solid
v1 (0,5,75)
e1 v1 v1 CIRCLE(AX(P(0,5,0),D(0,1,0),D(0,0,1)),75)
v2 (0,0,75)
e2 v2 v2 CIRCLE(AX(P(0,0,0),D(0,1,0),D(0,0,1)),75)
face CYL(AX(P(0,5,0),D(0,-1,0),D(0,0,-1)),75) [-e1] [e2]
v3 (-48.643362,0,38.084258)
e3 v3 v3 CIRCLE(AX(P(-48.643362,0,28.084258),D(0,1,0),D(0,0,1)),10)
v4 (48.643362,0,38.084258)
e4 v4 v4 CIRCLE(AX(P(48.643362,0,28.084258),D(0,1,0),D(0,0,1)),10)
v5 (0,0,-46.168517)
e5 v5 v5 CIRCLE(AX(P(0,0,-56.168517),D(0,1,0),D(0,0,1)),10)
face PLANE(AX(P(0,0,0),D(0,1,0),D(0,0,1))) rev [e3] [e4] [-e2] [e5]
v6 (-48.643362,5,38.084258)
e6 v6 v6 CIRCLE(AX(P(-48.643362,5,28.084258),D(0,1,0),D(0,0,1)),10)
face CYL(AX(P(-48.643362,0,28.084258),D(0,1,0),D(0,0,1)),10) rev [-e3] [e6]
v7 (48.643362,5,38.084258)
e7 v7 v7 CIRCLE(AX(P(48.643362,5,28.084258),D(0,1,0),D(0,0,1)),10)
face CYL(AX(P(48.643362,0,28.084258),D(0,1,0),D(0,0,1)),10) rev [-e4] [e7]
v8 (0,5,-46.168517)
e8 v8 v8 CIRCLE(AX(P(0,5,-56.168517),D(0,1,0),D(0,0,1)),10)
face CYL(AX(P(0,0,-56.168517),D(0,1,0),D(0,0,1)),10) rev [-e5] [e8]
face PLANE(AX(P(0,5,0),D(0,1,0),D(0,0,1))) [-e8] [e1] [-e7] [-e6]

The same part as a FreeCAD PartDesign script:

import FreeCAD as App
import Part
import Sketcher
from FreeCAD import Vector
Q = App.Units.Quantity

doc = App.newDocument("Part")
body = doc.addObject("PartDesign::Body", "Body")

sketch1 = body.newObject("Sketcher::SketchObject", "Sketch")
sketch1.AttachmentSupport = (doc.getObject("XZ_Plane"), [""])
sketch1.MapMode = "FlatFace"
sketch1.addGeometry(Part.Circle(Vector(0, 0, 0), Vector(0, 0, 1), 75), False)
sketch1.addConstraint(Sketcher.Constraint("Coincident", 0, 3, -1, 1))
sketch1.addConstraint(Sketcher.Constraint("Diameter", 0, Q("150 mm")))
pad1 = body.newObject("PartDesign::Pad", "Pad")
pad1.Profile = sketch1
pad1.Length = 5
pad1.Reversed = True

sketch2 = body.newObject("Sketcher::SketchObject", "Sketch001")
sketch2.AttachmentSupport = (doc.getObject("XZ_Plane"), [""])
sketch2.MapMode = "FlatFace"
sketch2.AttachmentOffset = App.Placement(Vector(0, 0, -5), App.Rotation())
sketch2.addGeometry(Part.Circle(Vector(0, -56, 0), Vector(0, 0, 1), 10), False)
sketch2.addGeometry(Part.Circle(Vector(49, 28, 0), Vector(0, 0, 1), 10), False)
sketch2.addGeometry(Part.Circle(Vector(-49, 28, 0), Vector(0, 0, 1), 10), False)
sketch2.addConstraint(Sketcher.Constraint("Equal", 0, 1))
sketch2.addConstraint(Sketcher.Constraint("Equal", 1, 2))
sketch2.addConstraint(Sketcher.Constraint("Symmetric", 1, 3, 2, 3, -2))
sketch2.addConstraint(Sketcher.Constraint("PointOnObject", 0, 3, -2))
sketch2.addConstraint(Sketcher.Constraint("Diameter", 0, Q("20 mm")))
sketch2.addConstraint(Sketcher.Constraint("DistanceY", -1, 1, 1, 3, Q("28.084258 mm")))
sketch2.addConstraint(Sketcher.Constraint("DistanceY", 0, 3, -1, 1, Q("56.168517 mm")))
sketch2.addConstraint(Sketcher.Constraint("DistanceX", -1, 1, 1, 3, Q("48.643362 mm")))
pocket1 = body.newObject("PartDesign::Pocket", "Pocket")
pocket1.Profile = sketch2
pocket1.Length = 5
pocket1.Reversed = True

doc.recompute()
